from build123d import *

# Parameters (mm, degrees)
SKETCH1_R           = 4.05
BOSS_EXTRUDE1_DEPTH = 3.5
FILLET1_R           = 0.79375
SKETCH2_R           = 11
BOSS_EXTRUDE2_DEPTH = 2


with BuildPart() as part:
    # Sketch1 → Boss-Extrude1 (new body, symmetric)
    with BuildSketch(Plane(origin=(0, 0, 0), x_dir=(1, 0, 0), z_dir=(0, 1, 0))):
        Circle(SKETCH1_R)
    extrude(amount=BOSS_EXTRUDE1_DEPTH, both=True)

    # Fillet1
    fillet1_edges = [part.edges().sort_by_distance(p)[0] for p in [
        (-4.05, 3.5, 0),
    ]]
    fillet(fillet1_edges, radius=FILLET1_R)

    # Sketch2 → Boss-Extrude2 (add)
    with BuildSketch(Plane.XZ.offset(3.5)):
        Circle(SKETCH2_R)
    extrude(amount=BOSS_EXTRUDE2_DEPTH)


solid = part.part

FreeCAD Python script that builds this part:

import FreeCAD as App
import Part
import Sketcher

V = App.Vector


def edges_at(feature, points):
    """Names of the edges that pass closest to the given points."""
    edges = feature.Shape.Edges
    near = lambda p: min(range(len(edges)), key=lambda i: edges[i].distToShape(Part.Vertex(*p))[0])
    return sorted({f"Edge{near(p) + 1}" for p in points})

doc = App.newDocument("Part")
body = doc.addObject("PartDesign::Body", "Body")

# Sketch on XZ plane
sketch1 = doc.addObject("Sketcher::SketchObject", "Sketch")
body.addObject(sketch1)
sketch1.AttachmentSupport = (doc.XZ_Plane, [""])
sketch1.MapMode = "FlatFace"
sketch1.addGeometry(Part.Circle(V(0, 0, 0), V(0, 0, 1), 4), False)
sketch1.addConstraint(Sketcher.Constraint("Coincident", 0, 3, -1, 1))
sketch1.addConstraint(Sketcher.Constraint("Diameter", 0, 8.1))
pad1 = doc.addObject("PartDesign::Pad", "Pad")
body.addObject(pad1)
pad1.Profile = sketch1
pad1.Length = 7
pad1.Midplane = True
doc.recompute()

fillet = doc.addObject("PartDesign::Fillet", "Fillet")
body.addObject(fillet)
fillet.Base = (pad1, edges_at(pad1, [(-4.05, 3.5, 0)]))
fillet.Radius = 0.79375

# Sketch on XZ plane
sketch2 = doc.addObject("Sketcher::SketchObject", "Sketch001")
body.addObject(sketch2)
sketch2.AttachmentSupport = (doc.XZ_Plane, [""])
sketch2.MapMode = "FlatFace"
sketch2.AttachmentOffset = App.Placement(V(0, 0, 3.5), App.Rotation())
sketch2.addGeometry(Part.Circle(V(0, 0, 0), V(0, 0, 1), 11), False)
sketch2.addConstraint(Sketcher.Constraint("Coincident", 0, 3, -1, 1))
sketch2.addConstraint(Sketcher.Constraint("Diameter", 0, 22.0))
pad2 = doc.addObject("PartDesign::Pad", "Pad001")
body.addObject(pad2)
pad2.Profile = sketch2
pad2.Length = 2

doc.recompute()
